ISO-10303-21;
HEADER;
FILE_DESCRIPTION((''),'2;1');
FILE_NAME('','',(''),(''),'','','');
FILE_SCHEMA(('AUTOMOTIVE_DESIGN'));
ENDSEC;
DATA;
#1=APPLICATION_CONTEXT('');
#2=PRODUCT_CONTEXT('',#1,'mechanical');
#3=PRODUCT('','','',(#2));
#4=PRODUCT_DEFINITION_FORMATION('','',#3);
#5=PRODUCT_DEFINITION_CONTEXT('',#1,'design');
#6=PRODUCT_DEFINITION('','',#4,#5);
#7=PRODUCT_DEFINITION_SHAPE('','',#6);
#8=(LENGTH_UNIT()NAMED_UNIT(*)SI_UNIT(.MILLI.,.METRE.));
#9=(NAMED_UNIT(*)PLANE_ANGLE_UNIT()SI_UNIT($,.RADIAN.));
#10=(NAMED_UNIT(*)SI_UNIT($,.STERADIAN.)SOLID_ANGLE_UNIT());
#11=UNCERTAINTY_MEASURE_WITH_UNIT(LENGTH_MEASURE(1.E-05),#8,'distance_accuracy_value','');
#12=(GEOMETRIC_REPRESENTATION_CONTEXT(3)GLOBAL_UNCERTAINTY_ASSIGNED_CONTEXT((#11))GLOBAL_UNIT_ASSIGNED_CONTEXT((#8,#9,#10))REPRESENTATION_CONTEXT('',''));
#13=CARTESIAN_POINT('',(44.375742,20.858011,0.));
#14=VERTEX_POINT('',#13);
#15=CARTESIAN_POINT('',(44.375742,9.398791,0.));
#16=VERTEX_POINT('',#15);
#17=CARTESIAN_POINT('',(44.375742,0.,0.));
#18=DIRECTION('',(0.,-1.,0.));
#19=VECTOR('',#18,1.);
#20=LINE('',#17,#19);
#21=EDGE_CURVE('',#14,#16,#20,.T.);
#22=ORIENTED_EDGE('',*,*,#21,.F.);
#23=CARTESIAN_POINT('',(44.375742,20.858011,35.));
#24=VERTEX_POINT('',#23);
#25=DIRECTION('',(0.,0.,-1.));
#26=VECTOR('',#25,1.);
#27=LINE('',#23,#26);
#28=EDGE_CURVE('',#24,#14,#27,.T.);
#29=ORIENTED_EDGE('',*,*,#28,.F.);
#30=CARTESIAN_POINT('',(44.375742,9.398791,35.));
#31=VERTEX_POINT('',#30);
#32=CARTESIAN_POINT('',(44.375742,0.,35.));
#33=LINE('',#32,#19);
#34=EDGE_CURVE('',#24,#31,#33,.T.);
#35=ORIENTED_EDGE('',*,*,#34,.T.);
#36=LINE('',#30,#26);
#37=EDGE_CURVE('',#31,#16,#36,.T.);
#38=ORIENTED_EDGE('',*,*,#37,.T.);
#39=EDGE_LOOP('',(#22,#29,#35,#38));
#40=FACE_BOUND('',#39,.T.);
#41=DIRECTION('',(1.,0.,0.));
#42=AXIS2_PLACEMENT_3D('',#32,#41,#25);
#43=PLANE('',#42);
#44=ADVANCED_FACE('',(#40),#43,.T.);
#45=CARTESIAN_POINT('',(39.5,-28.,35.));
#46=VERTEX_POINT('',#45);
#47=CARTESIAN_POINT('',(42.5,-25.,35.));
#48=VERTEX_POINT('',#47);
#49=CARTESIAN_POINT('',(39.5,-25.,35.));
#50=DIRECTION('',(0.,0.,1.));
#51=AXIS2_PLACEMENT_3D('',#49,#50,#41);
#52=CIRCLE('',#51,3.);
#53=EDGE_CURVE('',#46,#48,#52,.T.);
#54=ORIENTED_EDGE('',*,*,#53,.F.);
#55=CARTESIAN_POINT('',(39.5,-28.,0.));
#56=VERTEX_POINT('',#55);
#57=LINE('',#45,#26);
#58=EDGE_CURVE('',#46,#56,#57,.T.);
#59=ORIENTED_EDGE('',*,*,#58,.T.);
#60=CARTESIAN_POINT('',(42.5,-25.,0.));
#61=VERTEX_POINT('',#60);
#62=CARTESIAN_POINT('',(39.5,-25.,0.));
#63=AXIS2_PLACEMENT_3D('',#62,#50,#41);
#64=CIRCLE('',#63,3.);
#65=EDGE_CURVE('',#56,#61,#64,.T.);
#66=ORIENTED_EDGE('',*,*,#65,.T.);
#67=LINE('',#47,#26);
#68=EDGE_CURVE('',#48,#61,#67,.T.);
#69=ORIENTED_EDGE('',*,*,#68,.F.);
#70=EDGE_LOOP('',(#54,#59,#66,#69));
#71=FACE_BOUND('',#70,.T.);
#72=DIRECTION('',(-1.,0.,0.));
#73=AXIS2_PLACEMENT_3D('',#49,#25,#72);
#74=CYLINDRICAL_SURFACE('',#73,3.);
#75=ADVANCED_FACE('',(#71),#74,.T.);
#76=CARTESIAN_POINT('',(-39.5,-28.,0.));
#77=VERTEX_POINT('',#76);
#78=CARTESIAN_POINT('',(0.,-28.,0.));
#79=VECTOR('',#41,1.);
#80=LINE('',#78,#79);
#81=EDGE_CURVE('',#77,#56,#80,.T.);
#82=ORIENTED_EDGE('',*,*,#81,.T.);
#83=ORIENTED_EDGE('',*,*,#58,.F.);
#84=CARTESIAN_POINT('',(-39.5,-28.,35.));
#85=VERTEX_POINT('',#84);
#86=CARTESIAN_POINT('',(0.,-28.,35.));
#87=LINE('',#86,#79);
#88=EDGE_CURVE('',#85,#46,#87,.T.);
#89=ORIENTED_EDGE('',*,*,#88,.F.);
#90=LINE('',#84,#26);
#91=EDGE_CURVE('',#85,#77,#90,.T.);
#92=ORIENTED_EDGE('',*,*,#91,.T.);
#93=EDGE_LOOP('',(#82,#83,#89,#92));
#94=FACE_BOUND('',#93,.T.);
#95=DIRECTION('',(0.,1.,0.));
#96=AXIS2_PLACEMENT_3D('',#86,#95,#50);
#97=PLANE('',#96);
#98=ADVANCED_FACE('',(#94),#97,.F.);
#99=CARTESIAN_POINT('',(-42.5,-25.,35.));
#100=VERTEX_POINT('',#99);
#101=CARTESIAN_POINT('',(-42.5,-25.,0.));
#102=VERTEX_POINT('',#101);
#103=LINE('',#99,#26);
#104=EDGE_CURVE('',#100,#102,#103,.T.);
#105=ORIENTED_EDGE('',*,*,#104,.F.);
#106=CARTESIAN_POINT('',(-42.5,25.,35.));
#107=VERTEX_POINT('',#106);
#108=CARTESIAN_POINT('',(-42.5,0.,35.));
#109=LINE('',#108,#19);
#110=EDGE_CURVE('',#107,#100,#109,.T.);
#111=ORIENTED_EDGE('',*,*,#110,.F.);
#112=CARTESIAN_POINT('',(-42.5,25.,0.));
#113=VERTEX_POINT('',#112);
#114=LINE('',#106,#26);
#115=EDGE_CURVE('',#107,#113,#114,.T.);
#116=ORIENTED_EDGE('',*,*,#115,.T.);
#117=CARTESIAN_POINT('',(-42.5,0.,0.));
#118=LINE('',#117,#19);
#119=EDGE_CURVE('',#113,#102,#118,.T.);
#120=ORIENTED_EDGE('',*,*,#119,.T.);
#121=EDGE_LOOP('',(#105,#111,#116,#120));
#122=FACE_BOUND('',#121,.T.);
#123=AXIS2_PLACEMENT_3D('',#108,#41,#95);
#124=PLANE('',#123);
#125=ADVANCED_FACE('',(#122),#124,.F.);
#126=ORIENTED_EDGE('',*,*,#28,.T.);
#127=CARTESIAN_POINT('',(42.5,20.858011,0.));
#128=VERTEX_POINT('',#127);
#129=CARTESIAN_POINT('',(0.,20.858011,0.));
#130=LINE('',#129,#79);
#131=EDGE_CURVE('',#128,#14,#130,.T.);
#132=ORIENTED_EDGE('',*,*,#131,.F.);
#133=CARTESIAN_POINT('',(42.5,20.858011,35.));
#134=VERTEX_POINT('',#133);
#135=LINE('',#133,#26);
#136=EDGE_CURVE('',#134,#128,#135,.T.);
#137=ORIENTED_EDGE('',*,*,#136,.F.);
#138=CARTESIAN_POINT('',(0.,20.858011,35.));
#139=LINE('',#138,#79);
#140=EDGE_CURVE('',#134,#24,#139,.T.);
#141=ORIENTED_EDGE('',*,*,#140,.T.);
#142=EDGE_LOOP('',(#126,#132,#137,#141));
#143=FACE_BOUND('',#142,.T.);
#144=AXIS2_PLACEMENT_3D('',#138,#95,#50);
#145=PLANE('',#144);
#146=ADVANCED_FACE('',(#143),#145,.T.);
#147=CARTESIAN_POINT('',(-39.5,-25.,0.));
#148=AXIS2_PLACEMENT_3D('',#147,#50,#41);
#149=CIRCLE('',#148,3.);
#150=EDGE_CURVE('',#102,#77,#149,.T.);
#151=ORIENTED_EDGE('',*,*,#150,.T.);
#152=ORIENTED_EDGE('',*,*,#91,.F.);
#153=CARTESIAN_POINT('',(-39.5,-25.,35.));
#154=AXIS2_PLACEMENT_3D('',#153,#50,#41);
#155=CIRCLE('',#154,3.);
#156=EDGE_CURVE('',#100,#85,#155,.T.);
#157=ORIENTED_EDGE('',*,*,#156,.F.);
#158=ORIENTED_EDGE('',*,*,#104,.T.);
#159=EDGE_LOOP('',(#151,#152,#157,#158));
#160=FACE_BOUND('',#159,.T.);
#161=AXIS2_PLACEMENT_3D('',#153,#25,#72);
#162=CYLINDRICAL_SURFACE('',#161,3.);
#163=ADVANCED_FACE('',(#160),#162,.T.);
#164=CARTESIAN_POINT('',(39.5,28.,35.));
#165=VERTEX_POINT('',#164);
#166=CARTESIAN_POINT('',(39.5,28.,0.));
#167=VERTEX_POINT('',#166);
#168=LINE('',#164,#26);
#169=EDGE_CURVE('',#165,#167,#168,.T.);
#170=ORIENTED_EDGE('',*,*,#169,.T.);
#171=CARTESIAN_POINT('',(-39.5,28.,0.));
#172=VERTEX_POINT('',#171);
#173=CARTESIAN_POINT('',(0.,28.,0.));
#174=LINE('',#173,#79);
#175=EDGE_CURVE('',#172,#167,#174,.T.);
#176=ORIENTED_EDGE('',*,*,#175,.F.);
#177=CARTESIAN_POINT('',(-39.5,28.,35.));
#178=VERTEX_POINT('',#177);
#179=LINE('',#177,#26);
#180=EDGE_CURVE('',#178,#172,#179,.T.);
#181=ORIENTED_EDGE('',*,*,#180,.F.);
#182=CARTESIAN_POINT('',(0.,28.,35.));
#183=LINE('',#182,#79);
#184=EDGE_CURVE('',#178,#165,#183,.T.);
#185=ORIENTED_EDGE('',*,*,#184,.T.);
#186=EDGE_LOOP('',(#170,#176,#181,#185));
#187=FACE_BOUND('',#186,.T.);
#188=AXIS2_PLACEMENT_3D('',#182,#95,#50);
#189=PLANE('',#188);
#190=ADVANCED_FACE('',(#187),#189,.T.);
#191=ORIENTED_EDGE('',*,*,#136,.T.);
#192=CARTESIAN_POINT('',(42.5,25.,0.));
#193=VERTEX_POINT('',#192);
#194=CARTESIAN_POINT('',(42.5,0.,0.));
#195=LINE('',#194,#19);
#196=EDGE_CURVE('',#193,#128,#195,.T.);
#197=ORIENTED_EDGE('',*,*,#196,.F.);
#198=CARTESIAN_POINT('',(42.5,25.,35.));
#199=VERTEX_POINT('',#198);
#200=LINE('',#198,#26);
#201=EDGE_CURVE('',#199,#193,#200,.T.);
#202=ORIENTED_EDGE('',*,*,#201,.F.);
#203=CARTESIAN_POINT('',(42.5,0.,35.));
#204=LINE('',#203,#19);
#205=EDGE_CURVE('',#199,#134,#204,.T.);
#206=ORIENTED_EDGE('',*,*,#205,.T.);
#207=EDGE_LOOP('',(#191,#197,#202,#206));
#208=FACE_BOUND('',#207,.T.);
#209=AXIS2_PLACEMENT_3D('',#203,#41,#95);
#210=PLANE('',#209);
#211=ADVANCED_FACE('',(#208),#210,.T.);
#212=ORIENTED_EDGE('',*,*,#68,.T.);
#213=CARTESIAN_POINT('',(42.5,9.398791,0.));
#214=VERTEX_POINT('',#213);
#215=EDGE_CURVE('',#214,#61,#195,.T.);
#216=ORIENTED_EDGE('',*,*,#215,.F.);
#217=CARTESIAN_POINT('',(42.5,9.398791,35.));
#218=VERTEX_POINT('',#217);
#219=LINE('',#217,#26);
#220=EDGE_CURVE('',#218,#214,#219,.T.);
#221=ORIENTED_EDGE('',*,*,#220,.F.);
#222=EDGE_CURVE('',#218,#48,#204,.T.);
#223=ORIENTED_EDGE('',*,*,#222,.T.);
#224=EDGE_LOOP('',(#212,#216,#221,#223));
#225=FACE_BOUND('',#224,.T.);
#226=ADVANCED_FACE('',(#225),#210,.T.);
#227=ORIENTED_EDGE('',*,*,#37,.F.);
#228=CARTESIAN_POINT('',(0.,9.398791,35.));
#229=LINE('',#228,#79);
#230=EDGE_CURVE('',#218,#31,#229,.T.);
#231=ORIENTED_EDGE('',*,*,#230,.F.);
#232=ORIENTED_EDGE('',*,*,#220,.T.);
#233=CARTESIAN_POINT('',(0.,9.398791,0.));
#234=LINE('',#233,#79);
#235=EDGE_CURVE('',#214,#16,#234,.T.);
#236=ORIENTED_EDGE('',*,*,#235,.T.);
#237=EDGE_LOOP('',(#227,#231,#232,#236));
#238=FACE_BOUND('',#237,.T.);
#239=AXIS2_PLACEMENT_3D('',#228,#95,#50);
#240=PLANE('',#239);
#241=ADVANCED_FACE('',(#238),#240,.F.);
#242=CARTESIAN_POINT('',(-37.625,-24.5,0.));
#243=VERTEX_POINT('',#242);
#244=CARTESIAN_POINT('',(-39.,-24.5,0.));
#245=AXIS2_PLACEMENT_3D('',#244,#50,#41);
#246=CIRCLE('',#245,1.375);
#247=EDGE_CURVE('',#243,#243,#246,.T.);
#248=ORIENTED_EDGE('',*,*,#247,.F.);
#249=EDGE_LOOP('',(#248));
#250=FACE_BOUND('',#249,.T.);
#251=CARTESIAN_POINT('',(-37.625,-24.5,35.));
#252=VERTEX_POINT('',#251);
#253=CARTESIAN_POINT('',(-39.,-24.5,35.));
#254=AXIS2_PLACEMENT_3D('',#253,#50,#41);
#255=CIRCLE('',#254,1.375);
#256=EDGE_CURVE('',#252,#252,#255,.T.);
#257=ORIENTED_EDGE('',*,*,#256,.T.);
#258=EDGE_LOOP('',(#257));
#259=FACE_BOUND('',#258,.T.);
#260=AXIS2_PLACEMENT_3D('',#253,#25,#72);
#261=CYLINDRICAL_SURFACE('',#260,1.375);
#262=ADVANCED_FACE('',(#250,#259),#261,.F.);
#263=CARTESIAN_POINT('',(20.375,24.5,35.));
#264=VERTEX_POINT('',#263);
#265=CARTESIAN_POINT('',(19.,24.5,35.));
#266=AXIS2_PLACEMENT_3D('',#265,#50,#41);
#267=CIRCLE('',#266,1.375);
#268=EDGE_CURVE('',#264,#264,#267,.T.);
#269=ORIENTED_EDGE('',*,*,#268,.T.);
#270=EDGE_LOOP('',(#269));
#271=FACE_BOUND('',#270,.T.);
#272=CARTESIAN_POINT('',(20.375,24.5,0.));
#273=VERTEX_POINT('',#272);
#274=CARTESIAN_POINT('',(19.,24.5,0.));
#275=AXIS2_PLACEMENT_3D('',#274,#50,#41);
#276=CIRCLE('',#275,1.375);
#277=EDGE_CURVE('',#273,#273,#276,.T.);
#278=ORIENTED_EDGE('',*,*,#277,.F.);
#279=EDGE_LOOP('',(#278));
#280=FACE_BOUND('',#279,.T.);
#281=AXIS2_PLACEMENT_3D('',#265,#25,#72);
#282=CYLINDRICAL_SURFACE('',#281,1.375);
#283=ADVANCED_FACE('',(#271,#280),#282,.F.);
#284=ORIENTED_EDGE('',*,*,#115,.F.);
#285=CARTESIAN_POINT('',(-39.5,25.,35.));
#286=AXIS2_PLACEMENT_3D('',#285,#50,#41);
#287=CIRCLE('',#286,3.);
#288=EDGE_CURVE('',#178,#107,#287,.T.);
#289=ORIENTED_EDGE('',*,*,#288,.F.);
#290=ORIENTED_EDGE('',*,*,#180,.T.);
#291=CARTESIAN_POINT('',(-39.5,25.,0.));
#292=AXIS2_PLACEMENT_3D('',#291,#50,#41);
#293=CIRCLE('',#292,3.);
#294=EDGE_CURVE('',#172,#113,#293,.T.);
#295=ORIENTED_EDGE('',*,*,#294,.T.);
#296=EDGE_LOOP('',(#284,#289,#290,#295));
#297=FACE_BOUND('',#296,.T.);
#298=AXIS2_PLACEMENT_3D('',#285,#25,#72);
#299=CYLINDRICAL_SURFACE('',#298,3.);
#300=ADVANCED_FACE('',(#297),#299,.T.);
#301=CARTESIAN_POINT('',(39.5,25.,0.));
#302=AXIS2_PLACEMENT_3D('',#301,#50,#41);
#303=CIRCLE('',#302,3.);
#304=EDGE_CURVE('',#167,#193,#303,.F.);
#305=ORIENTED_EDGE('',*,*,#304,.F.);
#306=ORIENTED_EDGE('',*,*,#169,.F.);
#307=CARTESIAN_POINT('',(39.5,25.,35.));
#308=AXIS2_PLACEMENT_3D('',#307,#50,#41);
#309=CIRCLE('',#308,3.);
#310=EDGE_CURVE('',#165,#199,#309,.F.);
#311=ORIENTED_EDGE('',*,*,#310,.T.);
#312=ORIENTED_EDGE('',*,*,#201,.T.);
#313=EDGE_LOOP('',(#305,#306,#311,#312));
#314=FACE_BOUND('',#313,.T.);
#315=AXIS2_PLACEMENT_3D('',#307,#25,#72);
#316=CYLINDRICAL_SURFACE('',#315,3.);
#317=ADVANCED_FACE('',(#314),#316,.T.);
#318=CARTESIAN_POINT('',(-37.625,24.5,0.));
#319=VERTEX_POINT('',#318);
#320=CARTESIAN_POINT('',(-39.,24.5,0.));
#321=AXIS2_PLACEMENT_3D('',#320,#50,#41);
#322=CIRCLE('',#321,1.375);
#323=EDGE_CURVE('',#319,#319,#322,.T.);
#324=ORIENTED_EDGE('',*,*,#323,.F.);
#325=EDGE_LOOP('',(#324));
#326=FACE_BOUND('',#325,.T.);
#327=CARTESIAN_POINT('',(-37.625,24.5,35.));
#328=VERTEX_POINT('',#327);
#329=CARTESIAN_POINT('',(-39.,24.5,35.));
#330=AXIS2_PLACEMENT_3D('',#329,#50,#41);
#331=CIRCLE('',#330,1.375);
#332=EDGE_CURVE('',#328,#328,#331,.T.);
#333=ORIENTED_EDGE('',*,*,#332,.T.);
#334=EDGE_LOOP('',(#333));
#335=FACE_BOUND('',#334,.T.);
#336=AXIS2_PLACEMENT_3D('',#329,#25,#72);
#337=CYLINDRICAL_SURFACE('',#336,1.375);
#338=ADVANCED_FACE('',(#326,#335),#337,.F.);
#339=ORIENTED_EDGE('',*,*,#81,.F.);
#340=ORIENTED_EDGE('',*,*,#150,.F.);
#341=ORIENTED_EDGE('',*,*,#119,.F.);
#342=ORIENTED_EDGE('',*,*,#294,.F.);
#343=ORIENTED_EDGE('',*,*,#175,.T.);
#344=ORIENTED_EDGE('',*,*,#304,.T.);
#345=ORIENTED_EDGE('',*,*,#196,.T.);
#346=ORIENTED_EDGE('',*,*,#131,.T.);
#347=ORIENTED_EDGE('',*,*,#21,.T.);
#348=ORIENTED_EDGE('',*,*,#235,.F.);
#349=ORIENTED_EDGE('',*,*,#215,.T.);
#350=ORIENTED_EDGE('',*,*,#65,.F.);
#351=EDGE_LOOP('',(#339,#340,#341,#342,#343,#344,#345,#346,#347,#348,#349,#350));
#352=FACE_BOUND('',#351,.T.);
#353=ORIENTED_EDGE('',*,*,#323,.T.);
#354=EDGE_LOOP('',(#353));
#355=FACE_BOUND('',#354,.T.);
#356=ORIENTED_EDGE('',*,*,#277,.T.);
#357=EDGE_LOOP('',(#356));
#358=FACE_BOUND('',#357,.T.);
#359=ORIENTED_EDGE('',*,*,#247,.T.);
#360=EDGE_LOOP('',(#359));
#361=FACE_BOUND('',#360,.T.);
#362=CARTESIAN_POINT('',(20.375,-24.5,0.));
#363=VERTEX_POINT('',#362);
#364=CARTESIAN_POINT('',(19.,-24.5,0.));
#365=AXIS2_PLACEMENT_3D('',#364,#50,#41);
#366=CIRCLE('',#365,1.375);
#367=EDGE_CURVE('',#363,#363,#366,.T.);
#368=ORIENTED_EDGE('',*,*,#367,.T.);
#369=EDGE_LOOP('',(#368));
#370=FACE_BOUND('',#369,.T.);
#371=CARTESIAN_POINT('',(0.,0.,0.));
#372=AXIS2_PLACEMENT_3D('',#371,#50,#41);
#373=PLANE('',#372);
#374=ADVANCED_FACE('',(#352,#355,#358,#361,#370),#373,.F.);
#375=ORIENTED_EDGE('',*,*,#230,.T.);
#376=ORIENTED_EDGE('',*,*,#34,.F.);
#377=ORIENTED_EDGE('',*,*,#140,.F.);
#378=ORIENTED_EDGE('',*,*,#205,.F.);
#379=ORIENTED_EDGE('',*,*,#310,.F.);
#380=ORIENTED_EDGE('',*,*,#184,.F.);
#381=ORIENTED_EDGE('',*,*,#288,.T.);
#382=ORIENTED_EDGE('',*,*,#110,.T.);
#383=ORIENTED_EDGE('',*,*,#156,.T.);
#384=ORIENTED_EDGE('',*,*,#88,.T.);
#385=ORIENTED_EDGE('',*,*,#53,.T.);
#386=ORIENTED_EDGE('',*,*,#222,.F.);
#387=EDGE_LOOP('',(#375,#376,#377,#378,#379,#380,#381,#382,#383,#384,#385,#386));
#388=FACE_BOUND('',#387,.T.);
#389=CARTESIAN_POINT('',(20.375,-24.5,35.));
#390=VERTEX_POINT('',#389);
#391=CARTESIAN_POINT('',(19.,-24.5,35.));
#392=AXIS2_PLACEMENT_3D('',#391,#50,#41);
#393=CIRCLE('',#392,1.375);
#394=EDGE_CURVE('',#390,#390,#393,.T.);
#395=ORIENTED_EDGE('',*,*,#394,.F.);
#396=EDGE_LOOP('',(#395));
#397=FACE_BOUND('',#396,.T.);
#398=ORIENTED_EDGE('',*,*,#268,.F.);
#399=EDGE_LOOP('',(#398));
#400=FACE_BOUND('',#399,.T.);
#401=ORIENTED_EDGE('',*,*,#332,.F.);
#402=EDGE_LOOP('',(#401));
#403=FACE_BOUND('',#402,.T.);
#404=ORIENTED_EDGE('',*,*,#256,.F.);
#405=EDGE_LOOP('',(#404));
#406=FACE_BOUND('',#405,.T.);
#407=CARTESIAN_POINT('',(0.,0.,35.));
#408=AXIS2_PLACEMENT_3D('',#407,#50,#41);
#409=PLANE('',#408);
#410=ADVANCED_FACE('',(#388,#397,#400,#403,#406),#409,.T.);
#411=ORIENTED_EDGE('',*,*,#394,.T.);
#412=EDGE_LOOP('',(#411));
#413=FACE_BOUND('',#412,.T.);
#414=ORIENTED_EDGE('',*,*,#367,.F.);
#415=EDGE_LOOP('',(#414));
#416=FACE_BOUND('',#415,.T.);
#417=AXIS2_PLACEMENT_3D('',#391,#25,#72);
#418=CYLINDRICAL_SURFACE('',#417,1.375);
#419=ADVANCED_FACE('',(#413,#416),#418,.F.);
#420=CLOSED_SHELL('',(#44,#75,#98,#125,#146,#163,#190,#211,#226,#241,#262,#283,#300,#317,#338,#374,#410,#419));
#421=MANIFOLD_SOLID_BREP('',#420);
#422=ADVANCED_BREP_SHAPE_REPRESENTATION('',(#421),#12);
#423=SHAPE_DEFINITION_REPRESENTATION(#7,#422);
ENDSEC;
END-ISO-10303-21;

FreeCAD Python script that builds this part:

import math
import FreeCAD as App
import Part
import Sketcher
Q = App.Units.Quantity

doc = App.newDocument("Part")
body = doc.addObject("PartDesign::Body", "Body")

# Sketch on XY plane
sketch1 = body.newObject("Sketcher::SketchObject", "Sketch")
sketch1.AttachmentSupport = (doc.getObject("XY_Plane"), [""])
sketch1.MapMode = "FlatFace"
sketch1.addGeometry([
    Part.LineSegment(App.Vector(39.5, 28, 0), App.Vector(-39.5, 28, 0)),  # 0
    Part.ArcOfCircle(Part.Circle(App.Vector(-39.5, 25, 0), App.Vector(0, 0, 1), 3), math.radians(90), math.radians(180)),  # 1
    Part.LineSegment(App.Vector(-42.5, 25, 0), App.Vector(-42.5, -25, 0)),  # 2
    Part.ArcOfCircle(Part.Circle(App.Vector(-39.5, -25, 0), App.Vector(0, 0, 1), 3), math.radians(180), math.radians(270)),  # 3
    Part.LineSegment(App.Vector(-39.5, -28, 0), App.Vector(39.5, -28, 0)),  # 4
    Part.ArcOfCircle(Part.Circle(App.Vector(39.5, -25, 0), App.Vector(0, 0, 1), 3), math.radians(-90), math.radians(0)),  # 5
    Part.LineSegment(App.Vector(42.5, -25, 0), App.Vector(42.5, 9.398791, 0)),  # 6
    Part.LineSegment(App.Vector(42.5, 9.398791, 0), App.Vector(44.375742, 9.398791, 0)),  # 7
    Part.LineSegment(App.Vector(44.375742, 9.398791, 0), App.Vector(44.375742, 20.858011, 0)),  # 8
    Part.LineSegment(App.Vector(44.375742, 20.858011, 0), App.Vector(42.5, 20.858011, 0)),  # 9
    Part.LineSegment(App.Vector(42.5, 20.858011, 0), App.Vector(42.5, 25, 0)),  # 10
    Part.ArcOfCircle(Part.Circle(App.Vector(39.5, 25, 0), App.Vector(0, 0, 1), 3), math.radians(0), math.radians(90)),  # 11
    Part.Circle(App.Vector(-39, -24.5, 0), App.Vector(0, 0, 1), 1.375),  # 12
    Part.Circle(App.Vector(19, -24.5, 0), App.Vector(0, 0, 1), 1.375),  # 13
    Part.Circle(App.Vector(-39, 24.5, 0), App.Vector(0, 0, 1), 1.375),  # 14
    Part.Circle(App.Vector(19, 24.5, 0), App.Vector(0, 0, 1), 1.375),  # 15
], False)
sketch1.addConstraint([
    Sketcher.Constraint("Tangent", 0, 2, 1, 1),
    Sketcher.Constraint("Tangent", 1, 2, 2, 1),
    Sketcher.Constraint("Tangent", 2, 2, 3, 1),
    Sketcher.Constraint("Tangent", 3, 2, 4, 1),
    Sketcher.Constraint("Tangent", 4, 2, 5, 1),
    Sketcher.Constraint("Tangent", 5, 2, 6, 1),
    Sketcher.Constraint("Coincident", 6, 2, 7, 1),
    Sketcher.Constraint("Coincident", 7, 2, 8, 1),
    Sketcher.Constraint("Coincident", 8, 2, 9, 1),
    Sketcher.Constraint("Coincident", 9, 2, 10, 1),
    Sketcher.Constraint("Tangent", 10, 2, 11, 1),
    Sketcher.Constraint("Tangent", 11, 2, 0, 1),
    Sketcher.Constraint("Horizontal", 0),
    Sketcher.Constraint("Vertical", 2),
    Sketcher.Constraint("Horizontal", 4),
    Sketcher.Constraint("Vertical", 6),
    Sketcher.Constraint("Horizontal", 7),
    Sketcher.Constraint("Vertical", 8),
    Sketcher.Constraint("Horizontal", 9),
    Sketcher.Constraint("Vertical", 10),
    Sketcher.Constraint("Equal", 1, 3),
    Sketcher.Constraint("Equal", 3, 5),
    Sketcher.Constraint("Equal", 5, 11),
    Sketcher.Constraint("Equal", 12, 13),
    Sketcher.Constraint("Equal", 13, 14),
    Sketcher.Constraint("Equal", 14, 15),
    Sketcher.Constraint("Symmetric", 1, 3, 5, 3, -1, 1),
    Sketcher.Constraint("Symmetric", 12, 3, 14, 3, -1),
    Sketcher.Constraint("Symmetric", 13, 3, 15, 3, -1),
    Sketcher.Constraint("Horizontal", 12, 3, 13, 3),
    Sketcher.Constraint("Vertical", 5, 3, 11, 3),
    Sketcher.Constraint("Radius", 1, Q("3 mm")),
    Sketcher.Constraint("Diameter", 12, Q("2.75 mm")),
    Sketcher.Constraint("DistanceX", 0, 2, 0, 1, Q("79 mm")),
    Sketcher.Constraint("DistanceY", 2, 2, 2, 1, Q("50 mm")),
    Sketcher.Constraint("DistanceX", 12, 3, -1, 1, Q("39 mm")),
    Sketcher.Constraint("DistanceX", -1, 1, 13, 3, Q("19 mm")),
    Sketcher.Constraint("DistanceY", 12, 3, 14, 3, Q("49 mm")),
    Sketcher.Constraint("DistanceX", 7, 1, 7, 2, Q("1.875742 mm")),
    Sketcher.Constraint("DistanceY", 6, 1, 6, 2, Q("34.398791 mm")),
    Sketcher.Constraint("DistanceY", 8, 1, 8, 2, Q("11.459221 mm")),
])
pad1 = body.newObject("PartDesign::Pad", "Pad")
pad1.Profile = sketch1
pad1.Length = 35

doc.recompute()
